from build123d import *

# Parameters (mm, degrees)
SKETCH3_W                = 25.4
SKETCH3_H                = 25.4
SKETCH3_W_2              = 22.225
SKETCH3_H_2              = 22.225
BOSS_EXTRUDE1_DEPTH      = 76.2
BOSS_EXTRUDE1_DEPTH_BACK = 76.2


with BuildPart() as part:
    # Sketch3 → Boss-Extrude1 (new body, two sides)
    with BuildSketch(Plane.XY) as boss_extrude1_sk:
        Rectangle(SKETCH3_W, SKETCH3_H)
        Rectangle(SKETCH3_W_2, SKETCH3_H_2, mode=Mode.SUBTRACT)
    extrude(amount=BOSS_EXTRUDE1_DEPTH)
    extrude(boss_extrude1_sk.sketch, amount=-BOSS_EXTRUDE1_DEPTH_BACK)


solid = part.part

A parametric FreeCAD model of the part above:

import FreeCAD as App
import Part
import Sketcher

V = App.Vector
Q = App.Units.Quantity

doc = App.newDocument("Part")
body = doc.addObject("PartDesign::Body", "Body")

sketch1 = body.newObject("Sketcher::SketchObject", "Sketch")
sketch1.AttachmentSupport = (doc.getObject("XY_Plane"), [""])
sketch1.MapMode = "FlatFace"
sketch1.addGeometry([
    Part.LineSegment(V(-12.7, 12.7, 0), V(-12.7, -12.7, 0)),
    Part.LineSegment(V(-12.7, -12.7, 0), V(12.7, -12.7, 0)),
    Part.LineSegment(V(12.7, -12.7, 0), V(12.7, 12.7, 0)),
    Part.LineSegment(V(12.7, 12.7, 0), V(-12.7, 12.7, 0)),
    Part.LineSegment(V(11.1125, -11.1125, 0), V(-11.1125, -11.1125, 0)),
    Part.LineSegment(V(-11.1125, -11.1125, 0), V(-11.1125, 11.1125, 0)),
    Part.LineSegment(V(-11.1125, 11.1125, 0), V(11.1125, 11.1125, 0)),
    Part.LineSegment(V(11.1125, 11.1125, 0), V(11.1125, -11.1125, 0)),
], False)
sketch1.addConstraint([
    Sketcher.Constraint("Coincident", 0, 2, 1, 1),
    Sketcher.Constraint("Coincident", 1, 2, 2, 1),
    Sketcher.Constraint("Coincident", 2, 2, 3, 1),
    Sketcher.Constraint("Coincident", 3, 2, 0, 1),
    Sketcher.Constraint("Coincident", 4, 2, 5, 1),
    Sketcher.Constraint("Coincident", 5, 2, 6, 1),
    Sketcher.Constraint("Coincident", 6, 2, 7, 1),
    Sketcher.Constraint("Coincident", 7, 2, 4, 1),
    Sketcher.Constraint("Vertical", 0),
    Sketcher.Constraint("Horizontal", 1),
    Sketcher.Constraint("Vertical", 2),
    Sketcher.Constraint("Horizontal", 3),
    Sketcher.Constraint("Horizontal", 4),
    Sketcher.Constraint("Vertical", 5),
    Sketcher.Constraint("Horizontal", 6),
    Sketcher.Constraint("Vertical", 7),
    Sketcher.Constraint("Symmetric", 0, 2, 2, 2, -1, 1),
    Sketcher.Constraint("Symmetric", 4, 2, 6, 2, -1, 1),
    Sketcher.Constraint("Equal", 3, 0),
    Sketcher.Constraint("Equal", 6, 5),
    Sketcher.Constraint("DistanceX", 1, 1, 1, 2, Q("1 in")),
    Sketcher.Constraint("DistanceX", 4, 2, 4, 1, Q("0.875 in")),
])
pad1 = body.newObject("PartDesign::Pad", "Pad")
pad1.Profile = sketch1
pad1.Type = "TwoLengths"
pad1.Length = Q("3 in")
pad1.Length2 = Q("3 in")

doc.recompute()
